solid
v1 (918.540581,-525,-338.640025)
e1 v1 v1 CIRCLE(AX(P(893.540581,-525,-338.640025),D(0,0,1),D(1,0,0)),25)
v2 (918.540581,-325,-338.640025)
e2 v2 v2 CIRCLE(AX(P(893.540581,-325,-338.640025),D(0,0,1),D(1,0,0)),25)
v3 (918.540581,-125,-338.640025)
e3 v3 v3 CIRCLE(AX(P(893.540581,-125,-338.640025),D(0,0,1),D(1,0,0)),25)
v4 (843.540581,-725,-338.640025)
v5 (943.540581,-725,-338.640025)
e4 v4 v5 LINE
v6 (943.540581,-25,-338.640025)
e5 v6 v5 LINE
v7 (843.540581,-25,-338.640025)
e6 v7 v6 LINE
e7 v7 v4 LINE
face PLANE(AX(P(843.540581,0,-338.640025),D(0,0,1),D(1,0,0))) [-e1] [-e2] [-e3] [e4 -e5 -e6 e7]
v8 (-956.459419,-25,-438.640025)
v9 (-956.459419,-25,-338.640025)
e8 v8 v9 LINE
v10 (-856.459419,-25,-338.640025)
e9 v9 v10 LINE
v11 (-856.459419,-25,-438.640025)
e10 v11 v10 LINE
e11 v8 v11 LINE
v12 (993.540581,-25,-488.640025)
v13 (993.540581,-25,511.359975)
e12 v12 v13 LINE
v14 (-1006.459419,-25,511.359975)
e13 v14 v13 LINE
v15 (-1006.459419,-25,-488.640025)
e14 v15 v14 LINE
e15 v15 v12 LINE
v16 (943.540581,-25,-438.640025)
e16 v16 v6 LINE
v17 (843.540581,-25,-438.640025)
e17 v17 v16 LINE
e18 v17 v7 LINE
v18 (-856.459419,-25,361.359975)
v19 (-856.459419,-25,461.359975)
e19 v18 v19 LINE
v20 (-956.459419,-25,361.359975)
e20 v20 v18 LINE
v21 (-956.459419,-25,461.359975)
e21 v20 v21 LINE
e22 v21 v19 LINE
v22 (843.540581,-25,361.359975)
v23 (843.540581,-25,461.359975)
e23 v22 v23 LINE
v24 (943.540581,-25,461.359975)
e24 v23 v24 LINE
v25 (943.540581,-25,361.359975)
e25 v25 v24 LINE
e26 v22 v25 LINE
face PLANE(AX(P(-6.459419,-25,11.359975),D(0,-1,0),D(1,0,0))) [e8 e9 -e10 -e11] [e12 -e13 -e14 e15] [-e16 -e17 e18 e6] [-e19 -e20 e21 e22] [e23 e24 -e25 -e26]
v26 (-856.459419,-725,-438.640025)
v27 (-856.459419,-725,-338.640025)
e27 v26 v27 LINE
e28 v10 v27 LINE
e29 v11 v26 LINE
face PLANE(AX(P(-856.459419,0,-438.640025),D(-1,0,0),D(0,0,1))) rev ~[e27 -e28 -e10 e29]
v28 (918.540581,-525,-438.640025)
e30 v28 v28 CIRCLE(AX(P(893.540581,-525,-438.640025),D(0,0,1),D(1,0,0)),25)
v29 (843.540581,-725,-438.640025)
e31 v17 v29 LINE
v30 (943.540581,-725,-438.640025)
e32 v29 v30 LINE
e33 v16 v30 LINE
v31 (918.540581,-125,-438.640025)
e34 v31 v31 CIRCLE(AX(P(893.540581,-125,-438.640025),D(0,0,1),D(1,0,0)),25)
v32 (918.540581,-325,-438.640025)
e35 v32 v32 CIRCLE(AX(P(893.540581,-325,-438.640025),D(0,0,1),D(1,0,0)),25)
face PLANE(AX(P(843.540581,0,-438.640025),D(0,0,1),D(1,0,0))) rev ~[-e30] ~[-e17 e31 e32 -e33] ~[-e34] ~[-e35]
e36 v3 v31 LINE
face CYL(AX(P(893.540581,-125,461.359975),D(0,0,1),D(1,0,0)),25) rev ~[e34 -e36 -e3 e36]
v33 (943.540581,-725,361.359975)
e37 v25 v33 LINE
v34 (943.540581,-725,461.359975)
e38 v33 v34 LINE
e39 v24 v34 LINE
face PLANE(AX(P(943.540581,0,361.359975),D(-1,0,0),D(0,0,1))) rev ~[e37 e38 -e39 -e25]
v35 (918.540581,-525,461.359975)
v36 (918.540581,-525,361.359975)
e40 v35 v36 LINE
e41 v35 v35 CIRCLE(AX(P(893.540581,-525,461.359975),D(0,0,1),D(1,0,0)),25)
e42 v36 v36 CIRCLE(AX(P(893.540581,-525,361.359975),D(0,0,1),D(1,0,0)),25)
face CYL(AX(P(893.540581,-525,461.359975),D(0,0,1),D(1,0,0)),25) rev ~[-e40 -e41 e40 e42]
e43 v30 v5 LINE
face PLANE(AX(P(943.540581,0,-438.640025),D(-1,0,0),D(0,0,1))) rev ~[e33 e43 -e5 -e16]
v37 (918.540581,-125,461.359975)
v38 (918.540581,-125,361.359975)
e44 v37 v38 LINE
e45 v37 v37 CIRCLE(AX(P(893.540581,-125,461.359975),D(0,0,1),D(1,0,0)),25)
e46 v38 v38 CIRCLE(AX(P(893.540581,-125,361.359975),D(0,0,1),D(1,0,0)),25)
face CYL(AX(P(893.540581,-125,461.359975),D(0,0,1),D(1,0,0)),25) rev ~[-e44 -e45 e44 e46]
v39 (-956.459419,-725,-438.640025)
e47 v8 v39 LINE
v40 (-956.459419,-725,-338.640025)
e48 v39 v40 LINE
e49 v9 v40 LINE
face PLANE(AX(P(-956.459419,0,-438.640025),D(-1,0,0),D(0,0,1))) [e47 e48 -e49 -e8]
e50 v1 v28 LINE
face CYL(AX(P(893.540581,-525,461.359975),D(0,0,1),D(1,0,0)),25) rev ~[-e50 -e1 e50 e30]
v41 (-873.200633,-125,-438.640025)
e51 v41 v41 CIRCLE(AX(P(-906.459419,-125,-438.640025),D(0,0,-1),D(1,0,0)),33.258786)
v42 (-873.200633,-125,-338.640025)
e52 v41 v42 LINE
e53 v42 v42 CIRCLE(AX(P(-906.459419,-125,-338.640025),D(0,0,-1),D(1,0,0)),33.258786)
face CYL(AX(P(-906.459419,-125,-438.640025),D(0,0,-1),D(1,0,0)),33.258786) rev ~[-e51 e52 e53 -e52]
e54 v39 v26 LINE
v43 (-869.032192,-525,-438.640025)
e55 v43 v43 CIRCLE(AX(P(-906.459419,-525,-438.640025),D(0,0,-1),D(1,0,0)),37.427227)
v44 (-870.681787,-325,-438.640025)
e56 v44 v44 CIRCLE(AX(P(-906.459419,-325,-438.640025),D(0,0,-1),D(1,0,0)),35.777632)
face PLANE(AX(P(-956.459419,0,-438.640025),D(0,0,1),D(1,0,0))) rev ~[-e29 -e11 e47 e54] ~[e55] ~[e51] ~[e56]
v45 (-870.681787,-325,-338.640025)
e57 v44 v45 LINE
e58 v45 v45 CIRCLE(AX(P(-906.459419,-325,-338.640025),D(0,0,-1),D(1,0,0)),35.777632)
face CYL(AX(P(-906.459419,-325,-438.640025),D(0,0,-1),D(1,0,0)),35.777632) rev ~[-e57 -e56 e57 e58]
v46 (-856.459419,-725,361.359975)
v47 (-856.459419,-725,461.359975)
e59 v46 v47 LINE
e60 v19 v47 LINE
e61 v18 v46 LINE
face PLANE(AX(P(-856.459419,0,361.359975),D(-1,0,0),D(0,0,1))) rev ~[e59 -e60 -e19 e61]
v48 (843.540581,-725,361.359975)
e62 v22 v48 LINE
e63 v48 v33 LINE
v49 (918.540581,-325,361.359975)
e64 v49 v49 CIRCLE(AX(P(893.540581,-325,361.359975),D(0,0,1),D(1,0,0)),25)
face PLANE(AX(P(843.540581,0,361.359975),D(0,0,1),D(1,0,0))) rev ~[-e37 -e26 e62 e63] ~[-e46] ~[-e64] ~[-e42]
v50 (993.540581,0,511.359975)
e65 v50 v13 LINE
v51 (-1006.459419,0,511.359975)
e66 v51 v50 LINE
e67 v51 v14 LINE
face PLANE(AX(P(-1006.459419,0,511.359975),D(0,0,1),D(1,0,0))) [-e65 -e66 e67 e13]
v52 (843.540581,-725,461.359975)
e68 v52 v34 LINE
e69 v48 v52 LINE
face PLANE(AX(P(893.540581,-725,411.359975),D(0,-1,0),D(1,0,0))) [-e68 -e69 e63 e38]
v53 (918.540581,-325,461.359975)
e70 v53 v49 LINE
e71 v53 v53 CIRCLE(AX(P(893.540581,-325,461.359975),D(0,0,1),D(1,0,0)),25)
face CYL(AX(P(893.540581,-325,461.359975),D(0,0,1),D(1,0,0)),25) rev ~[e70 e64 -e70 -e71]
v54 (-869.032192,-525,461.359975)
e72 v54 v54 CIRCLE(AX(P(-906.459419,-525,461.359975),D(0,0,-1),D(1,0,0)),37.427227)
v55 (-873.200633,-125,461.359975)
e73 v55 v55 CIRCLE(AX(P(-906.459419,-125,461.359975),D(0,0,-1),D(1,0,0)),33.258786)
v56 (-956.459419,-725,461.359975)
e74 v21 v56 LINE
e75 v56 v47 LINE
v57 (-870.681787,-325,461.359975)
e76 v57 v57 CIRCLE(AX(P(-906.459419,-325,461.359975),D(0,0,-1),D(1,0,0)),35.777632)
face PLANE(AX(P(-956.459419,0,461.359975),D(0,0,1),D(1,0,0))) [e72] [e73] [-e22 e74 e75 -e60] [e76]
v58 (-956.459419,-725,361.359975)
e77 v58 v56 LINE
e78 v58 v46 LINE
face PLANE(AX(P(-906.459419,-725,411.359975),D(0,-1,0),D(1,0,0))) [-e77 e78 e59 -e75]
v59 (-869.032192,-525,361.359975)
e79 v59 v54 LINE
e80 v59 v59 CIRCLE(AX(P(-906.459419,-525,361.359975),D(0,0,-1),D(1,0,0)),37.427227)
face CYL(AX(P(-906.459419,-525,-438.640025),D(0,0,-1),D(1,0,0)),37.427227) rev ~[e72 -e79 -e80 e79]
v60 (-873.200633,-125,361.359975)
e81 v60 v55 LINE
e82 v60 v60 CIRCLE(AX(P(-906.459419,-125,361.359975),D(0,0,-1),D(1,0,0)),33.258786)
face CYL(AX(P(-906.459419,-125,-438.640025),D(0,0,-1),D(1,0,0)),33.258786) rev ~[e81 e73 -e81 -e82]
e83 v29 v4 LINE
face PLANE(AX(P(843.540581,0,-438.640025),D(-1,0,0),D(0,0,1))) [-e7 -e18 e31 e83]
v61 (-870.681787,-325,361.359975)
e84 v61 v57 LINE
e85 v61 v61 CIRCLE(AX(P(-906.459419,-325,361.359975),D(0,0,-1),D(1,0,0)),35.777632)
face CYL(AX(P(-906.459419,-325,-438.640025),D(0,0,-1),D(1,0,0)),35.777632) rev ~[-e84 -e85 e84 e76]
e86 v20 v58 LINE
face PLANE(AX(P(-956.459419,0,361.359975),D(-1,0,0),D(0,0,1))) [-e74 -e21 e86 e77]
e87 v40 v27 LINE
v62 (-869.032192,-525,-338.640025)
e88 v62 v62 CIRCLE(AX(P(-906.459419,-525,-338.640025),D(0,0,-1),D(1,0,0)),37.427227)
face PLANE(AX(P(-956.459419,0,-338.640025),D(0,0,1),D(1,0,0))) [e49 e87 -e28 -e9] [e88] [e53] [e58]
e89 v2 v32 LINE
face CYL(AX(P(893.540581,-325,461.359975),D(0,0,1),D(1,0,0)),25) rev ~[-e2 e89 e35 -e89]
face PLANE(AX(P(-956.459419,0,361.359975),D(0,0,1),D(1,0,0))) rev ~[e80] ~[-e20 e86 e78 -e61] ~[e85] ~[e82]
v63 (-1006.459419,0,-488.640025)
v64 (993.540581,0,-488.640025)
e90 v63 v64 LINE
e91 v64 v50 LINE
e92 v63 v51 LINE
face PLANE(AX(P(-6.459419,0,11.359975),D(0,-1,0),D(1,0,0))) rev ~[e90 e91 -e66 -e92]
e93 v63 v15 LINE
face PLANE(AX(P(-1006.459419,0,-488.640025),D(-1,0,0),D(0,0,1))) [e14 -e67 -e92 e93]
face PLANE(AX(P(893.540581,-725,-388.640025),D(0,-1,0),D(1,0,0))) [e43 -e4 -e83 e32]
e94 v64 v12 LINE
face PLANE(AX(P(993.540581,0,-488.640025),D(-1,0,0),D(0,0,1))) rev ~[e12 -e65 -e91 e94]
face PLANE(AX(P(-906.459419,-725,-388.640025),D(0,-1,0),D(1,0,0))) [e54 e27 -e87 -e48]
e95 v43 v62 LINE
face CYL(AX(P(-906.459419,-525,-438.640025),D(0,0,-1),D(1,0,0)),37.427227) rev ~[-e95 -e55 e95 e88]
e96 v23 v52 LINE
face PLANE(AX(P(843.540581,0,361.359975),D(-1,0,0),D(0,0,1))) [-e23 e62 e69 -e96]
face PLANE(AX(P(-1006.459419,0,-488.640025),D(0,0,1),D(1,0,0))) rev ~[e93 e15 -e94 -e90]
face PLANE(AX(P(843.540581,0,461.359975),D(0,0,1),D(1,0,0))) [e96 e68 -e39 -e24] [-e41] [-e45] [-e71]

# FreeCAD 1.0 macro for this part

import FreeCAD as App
import Part
import Sketcher

V = App.Vector
Q = App.Units.Quantity


def add_polygon(sketch, points):
    """Adds a closed chain of lines whose ends are joined by coincident constraints."""
    first, n = sketch.GeometryCount, len(points)
    for a, b in zip(points, points[1:] + points[:1]):
        sketch.addGeometry(Part.LineSegment(App.Vector(*a, 0), App.Vector(*b, 0)), False)
    for i in range(n):
        sketch.addConstraint(Sketcher.Constraint("Coincident", first + i, 2, first + (i + 1) % n, 1))

doc = App.newDocument("Part")
body = doc.addObject("PartDesign::Body", "Body")

# Sketch on XZ plane
sketch1 = body.newObject("Sketcher::SketchObject", "Sketch")
sketch1.AttachmentSupport = (doc.getObject("XZ_Plane"), [""])
sketch1.MapMode = "FlatFace"
add_polygon(sketch1, [(-1006, 511), (-1006, -489), (994, -489), (994, 511)])  # lines 0-3
add_polygon(sketch1, [(-856, -439), (-956, -439), (-956, -339), (-856, -339)])  # lines 4-7
add_polygon(sketch1, [(944, -439), (844, -439), (844, -339), (944, -339)])  # lines 8-11
add_polygon(sketch1, [(-856, 361), (-956, 361), (-956, 461), (-856, 461)])  # lines 12-15
add_polygon(sketch1, [(944, 361), (844, 361), (844, 461), (944, 461)])  # lines 16-19
sketch1.addConstraint(Sketcher.Constraint("Vertical", 0))
sketch1.addConstraint(Sketcher.Constraint("Horizontal", 1))
sketch1.addConstraint(Sketcher.Constraint("Vertical", 2))
sketch1.addConstraint(Sketcher.Constraint("Horizontal", 3))
sketch1.addConstraint(Sketcher.Constraint("Horizontal", 4))
sketch1.addConstraint(Sketcher.Constraint("Vertical", 5))
sketch1.addConstraint(Sketcher.Constraint("Horizontal", 6))
sketch1.addConstraint(Sketcher.Constraint("Vertical", 7))
sketch1.addConstraint(Sketcher.Constraint("Horizontal", 8))
sketch1.addConstraint(Sketcher.Constraint("Vertical", 9))
sketch1.addConstraint(Sketcher.Constraint("Horizontal", 10))
sketch1.addConstraint(Sketcher.Constraint("Vertical", 11))
sketch1.addConstraint(Sketcher.Constraint("Horizontal", 12))
sketch1.addConstraint(Sketcher.Constraint("Vertical", 13))
sketch1.addConstraint(Sketcher.Constraint("Horizontal", 14))
sketch1.addConstraint(Sketcher.Constraint("Vertical", 15))
sketch1.addConstraint(Sketcher.Constraint("Horizontal", 16))
sketch1.addConstraint(Sketcher.Constraint("Vertical", 17))
sketch1.addConstraint(Sketcher.Constraint("Horizontal", 18))
sketch1.addConstraint(Sketcher.Constraint("Vertical", 19))
sketch1.addConstraint(Sketcher.Constraint("Horizontal", 7, 2, 8, 2))
sketch1.addConstraint(Sketcher.Constraint("Horizontal", 6, 2, 9, 2))
sketch1.addConstraint(Sketcher.Constraint("Horizontal", 15, 2, 16, 2))
sketch1.addConstraint(Sketcher.Constraint("Horizontal", 14, 2, 17, 2))
sketch1.addConstraint(Sketcher.Constraint("Vertical", 5, 2, 12, 2))
sketch1.addConstraint(Sketcher.Constraint("Vertical", 7, 2, 14, 2))
sketch1.addConstraint(Sketcher.Constraint("Vertical", 9, 2, 16, 2))
sketch1.addConstraint(Sketcher.Constraint("Vertical", 11, 2, 18, 2))
sketch1.addConstraint(Sketcher.Constraint("Equal", 6, 8))
sketch1.addConstraint(Sketcher.Constraint("Equal", 18, 5))
sketch1.addConstraint(Sketcher.Constraint("Equal", 11, 13))
sketch1.addConstraint(Sketcher.Constraint("DistanceX", 1, 1, 1, 2, Q("2000 mm")))
sketch1.addConstraint(Sketcher.Constraint("DistanceX", 4, 2, 4, 1, Q("100 mm")))
sketch1.addConstraint(Sketcher.Constraint("DistanceY", 0, 2, 0, 1, Q("1000 mm")))
sketch1.addConstraint(Sketcher.Constraint("DistanceX", 0, 2, 4, 2, Q("50 mm")))
sketch1.addConstraint(Sketcher.Constraint("DistanceY", 0, 2, 4, 2, Q("50 mm")))
sketch1.addConstraint(Sketcher.Constraint("DistanceX", 8, 2, 1, 2, Q("150 mm")))
sketch1.addConstraint(Sketcher.Constraint("DistanceY", 12, 2, 3, 2, Q("150 mm")))
sketch1.addConstraint(Sketcher.Constraint("DistanceX", 0, 2, -1, 1, Q("1006.459419 mm")))
sketch1.addConstraint(Sketcher.Constraint("DistanceY", 0, 2, -1, 1, Q("488.640025 mm")))
pad1 = body.newObject("PartDesign::Pad", "Pad")
pad1.Profile = sketch1
pad1.Length = 25

# Sketch on XZ plane
sketch2 = body.newObject("Sketcher::SketchObject", "Sketch001")
sketch2.AttachmentSupport = (doc.getObject("XZ_Plane"), [""])
sketch2.MapMode = "FlatFace"
add_polygon(sketch2, [(844, -339), (844, -439), (944, -439), (944, -339)])  # lines 0-3
add_polygon(sketch2, [(-956, -339), (-956, -439), (-856, -439), (-856, -339)])  # lines 4-7
add_polygon(sketch2, [(-956, 461), (-956, 361), (-856, 361), (-856, 461)])  # lines 8-11
add_polygon(sketch2, [(844, 461), (844, 361), (944, 361), (944, 461)])  # lines 12-15
sketch2.addConstraint(Sketcher.Constraint("Vertical", 0))
sketch2.addConstraint(Sketcher.Constraint("Horizontal", 1))
sketch2.addConstraint(Sketcher.Constraint("Vertical", 2))
sketch2.addConstraint(Sketcher.Constraint("Horizontal", 3))
sketch2.addConstraint(Sketcher.Constraint("Vertical", 4))
sketch2.addConstraint(Sketcher.Constraint("Horizontal", 5))
sketch2.addConstraint(Sketcher.Constraint("Vertical", 6))
sketch2.addConstraint(Sketcher.Constraint("Horizontal", 7))
sketch2.addConstraint(Sketcher.Constraint("Vertical", 8))
sketch2.addConstraint(Sketcher.Constraint("Horizontal", 9))
sketch2.addConstraint(Sketcher.Constraint("Vertical", 10))
sketch2.addConstraint(Sketcher.Constraint("Horizontal", 11))
sketch2.addConstraint(Sketcher.Constraint("Vertical", 12))
sketch2.addConstraint(Sketcher.Constraint("Horizontal", 13))
sketch2.addConstraint(Sketcher.Constraint("Vertical", 14))
sketch2.addConstraint(Sketcher.Constraint("Horizontal", 15))
sketch2.addConstraint(Sketcher.Constraint("Horizontal", 1, 2, 4, 2))
sketch2.addConstraint(Sketcher.Constraint("Horizontal", 3, 2, 6, 2))
sketch2.addConstraint(Sketcher.Constraint("Horizontal", 9, 2, 12, 2))
sketch2.addConstraint(Sketcher.Constraint("Horizontal", 11, 2, 14, 2))
sketch2.addConstraint(Sketcher.Constraint("Vertical", 7, 2, 8, 2))
sketch2.addConstraint(Sketcher.Constraint("Vertical", 6, 2, 9, 2))
sketch2.addConstraint(Sketcher.Constraint("Vertical", 3, 2, 12, 2))
sketch2.addConstraint(Sketcher.Constraint("Vertical", 2, 2, 13, 2))
sketch2.addConstraint(Sketcher.Constraint("Equal", 3, 5))
sketch2.addConstraint(Sketcher.Constraint("Equal", 15, 0))
sketch2.addConstraint(Sketcher.Constraint("Equal", 6, 8))
sketch2.addConstraint(Sketcher.Constraint("DistanceX", 1, 1, 1, 2, Q("100 mm")))
sketch2.addConstraint(Sketcher.Constraint("DistanceX", 4, 2, 0, 2, Q("1800 mm")))
sketch2.addConstraint(Sketcher.Constraint("DistanceY", 7, 2, 8, 2, Q("700 mm")))
sketch2.addConstraint(Sketcher.Constraint("DistanceX", -1, 1, 0, 2, Q("843.540581 mm")))
sketch2.addConstraint(Sketcher.Constraint("DistanceY", 0, 2, -1, 1, Q("438.640025 mm")))
pad2 = body.newObject("PartDesign::Pad", "Pad001")
pad2.Profile = sketch2
pad2.Length = 725

# Sketch on XY plane
sketch3 = body.newObject("Sketcher::SketchObject", "Sketch002")
sketch3.AttachmentSupport = (doc.getObject("XY_Plane"), [""])
sketch3.MapMode = "FlatFace"
sketch3.AttachmentOffset = App.Placement(V(0, 0, -438.640025), App.Rotation())
sketch3.addGeometry(Part.Circle(V(-906, -125, 0), V(0, 0, 1), 33), False)
sketch3.addGeometry(Part.Circle(V(-906, -325, 0), V(0, 0, 1), 36), False)
sketch3.addGeometry(Part.Circle(V(-906, -525, 0), V(0, 0, 1), 37), False)
sketch3.addConstraint(Sketcher.Constraint("Vertical", 0, 3, 1, 3))
sketch3.addConstraint(Sketcher.Constraint("Vertical", 1, 3, 2, 3))
sketch3.addConstraint(Sketcher.Constraint("DistanceY", 0, 3, -1, 1, Q("125 mm")))
sketch3.addConstraint(Sketcher.Constraint("DistanceY", 1, 3, -1, 1, Q("325 mm")))
sketch3.addConstraint(Sketcher.Constraint("DistanceY", 2, 3, -1, 1, Q("525 mm")))
sketch3.addConstraint(Sketcher.Constraint("Diameter", 0, Q("66.517572 mm")))
sketch3.addConstraint(Sketcher.Constraint("Diameter", 1, Q("71.555264 mm")))
sketch3.addConstraint(Sketcher.Constraint("Diameter", 2, Q("74.854454 mm")))
sketch3.addConstraint(Sketcher.Constraint("DistanceX", 0, 3, -1, 1, Q("906.459419 mm")))
pocket1 = body.newObject("PartDesign::Pocket", "Pocket")
pocket1.Profile = sketch3
pocket1.Type = "ThroughAll"
pocket1.Reversed = True

# Sketch on XY plane
sketch4 = body.newObject("Sketcher::SketchObject", "Sketch003")
sketch4.AttachmentSupport = (doc.getObject("XY_Plane"), [""])
sketch4.MapMode = "FlatFace"
sketch4.AttachmentOffset = App.Placement(V(0, 0, 461.359975), App.Rotation())
sketch4.addGeometry(Part.Circle(V(894, -525, 0), V(0, 0, 1), 25), False)
sketch4.addGeometry(Part.Circle(V(894, -325, 0), V(0, 0, 1), 25), False)
sketch4.addGeometry(Part.Circle(V(894, -125, 0), V(0, 0, 1), 25), False)
sketch4.addConstraint(Sketcher.Constraint("Equal", 0, 1))
sketch4.addConstraint(Sketcher.Constraint("Equal", 1, 2))
sketch4.addConstraint(Sketcher.Constraint("Vertical", 0, 3, 1, 3))
sketch4.addConstraint(Sketcher.Constraint("Vertical", 1, 3, 2, 3))
sketch4.addConstraint(Sketcher.Constraint("Diameter", 0, Q("50 mm")))
sketch4.addConstraint(Sketcher.Constraint("DistanceY", 0, 3, -1, 1, Q("525 mm")))
sketch4.addConstraint(Sketcher.Constraint("DistanceY", 1, 3, -1, 1, Q("325 mm")))
sketch4.addConstraint(Sketcher.Constraint("DistanceY", 2, 3, -1, 1, Q("125 mm")))
sketch4.addConstraint(Sketcher.Constraint("DistanceX", -1, 1, 0, 3, Q("893.540581 mm")))
pocket2 = body.newObject("PartDesign::Pocket", "Pocket001")
pocket2.Profile = sketch4
pocket2.Type = "ThroughAll"

doc.recompute()
